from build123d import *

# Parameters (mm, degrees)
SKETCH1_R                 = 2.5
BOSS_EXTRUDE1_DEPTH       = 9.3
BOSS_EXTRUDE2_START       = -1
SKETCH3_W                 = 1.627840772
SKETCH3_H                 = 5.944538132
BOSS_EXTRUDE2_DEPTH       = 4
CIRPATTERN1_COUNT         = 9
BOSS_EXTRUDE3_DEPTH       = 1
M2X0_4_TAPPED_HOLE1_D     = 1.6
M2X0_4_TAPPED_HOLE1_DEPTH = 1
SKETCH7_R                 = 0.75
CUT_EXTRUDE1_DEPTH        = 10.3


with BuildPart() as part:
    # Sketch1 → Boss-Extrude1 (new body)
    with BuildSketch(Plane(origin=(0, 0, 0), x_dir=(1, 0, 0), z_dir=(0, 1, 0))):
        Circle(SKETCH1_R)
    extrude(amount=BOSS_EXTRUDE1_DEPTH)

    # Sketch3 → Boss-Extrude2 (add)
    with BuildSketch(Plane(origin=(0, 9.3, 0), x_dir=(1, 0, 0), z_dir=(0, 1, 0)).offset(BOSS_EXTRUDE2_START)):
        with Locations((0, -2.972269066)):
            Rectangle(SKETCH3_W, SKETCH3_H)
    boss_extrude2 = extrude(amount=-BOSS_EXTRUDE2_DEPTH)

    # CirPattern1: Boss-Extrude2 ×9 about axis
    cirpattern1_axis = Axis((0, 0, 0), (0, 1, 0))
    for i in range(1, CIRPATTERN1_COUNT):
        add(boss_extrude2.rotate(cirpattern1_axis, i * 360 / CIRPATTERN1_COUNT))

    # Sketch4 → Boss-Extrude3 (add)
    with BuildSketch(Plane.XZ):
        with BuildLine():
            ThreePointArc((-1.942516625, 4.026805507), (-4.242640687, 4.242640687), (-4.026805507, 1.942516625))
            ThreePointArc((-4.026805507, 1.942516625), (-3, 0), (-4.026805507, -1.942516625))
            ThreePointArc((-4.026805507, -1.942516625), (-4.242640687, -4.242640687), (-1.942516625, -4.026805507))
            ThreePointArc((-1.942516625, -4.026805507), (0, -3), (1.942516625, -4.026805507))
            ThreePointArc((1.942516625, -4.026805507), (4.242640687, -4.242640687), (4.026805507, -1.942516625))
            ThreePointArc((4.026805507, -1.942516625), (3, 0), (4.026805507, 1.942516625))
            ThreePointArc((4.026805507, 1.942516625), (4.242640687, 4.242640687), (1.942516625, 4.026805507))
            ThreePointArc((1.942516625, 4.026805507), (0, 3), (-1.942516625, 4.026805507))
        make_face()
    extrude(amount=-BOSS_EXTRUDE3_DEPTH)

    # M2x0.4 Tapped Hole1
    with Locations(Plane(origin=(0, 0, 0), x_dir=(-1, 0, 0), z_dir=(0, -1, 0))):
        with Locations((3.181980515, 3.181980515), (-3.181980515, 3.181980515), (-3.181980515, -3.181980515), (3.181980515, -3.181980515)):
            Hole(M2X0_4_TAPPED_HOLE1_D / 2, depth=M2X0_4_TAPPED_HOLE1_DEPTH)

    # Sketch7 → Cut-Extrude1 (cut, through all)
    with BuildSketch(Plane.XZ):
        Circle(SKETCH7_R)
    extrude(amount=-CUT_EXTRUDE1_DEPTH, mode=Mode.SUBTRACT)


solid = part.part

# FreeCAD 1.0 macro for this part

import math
import FreeCAD as App
import Part
import Sketcher
Q = App.Units.Quantity

doc = App.newDocument("Part")
params = doc.addObject("Spreadsheet::Sheet", "Params")
for row, (alias, value) in enumerate([
    ("sketch1_diameter", "5 mm"),
    ("pad1_length", "9.3 mm"),
    ("pad2_length", "4 mm"),
    ("sketch3_radius", "1.5 mm"),
    ("pad3_length", "1 mm"),
    ("sketch4_diameter", "1.6 mm"),
    ("hole_diameter", "1.6 mm"),
    ("hole_depth", "1 mm"),
    ("sketch5_diameter", "1.5 mm"),
], start=1):
    params.set(f"A{row}", alias)
    params.set(f"B{row}", "=" + value)
    params.setAlias(f"B{row}", alias)

body = doc.addObject("PartDesign::Body", "Body")

# Sketch on XZ plane
sketch1 = body.newObject("Sketcher::SketchObject", "Sketch")
sketch1.AttachmentSupport = (doc.getObject("XZ_Plane"), [""])
sketch1.MapMode = "FlatFace"
sketch1.addGeometry(Part.Circle(App.Vector(0, 0, 0), App.Vector(0, 0, 1), 2.5), False)
sketch1.addConstraint(Sketcher.Constraint("Coincident", 0, 3, -1, 1))
sketch1.addConstraint(Sketcher.Constraint("Diameter", 0, Q("5 mm")))
sketch1.setExpression("Constraints[1]", "Params.sketch1_diameter")
pad1 = body.newObject("PartDesign::Pad", "Pad")
pad1.Profile = sketch1
pad1.setExpression("Length", "Params.pad1_length")
pad1.Reversed = True

# Sketch on XZ plane
sketch2 = body.newObject("Sketcher::SketchObject", "Sketch001")
sketch2.AttachmentSupport = (doc.getObject("XZ_Plane"), [""])
sketch2.MapMode = "FlatFace"
sketch2.AttachmentOffset = App.Placement(App.Vector(0, 0, -8.3), App.Rotation())
sketch2.addGeometry(Part.LineSegment(App.Vector(-0.8, 0, 0), App.Vector(-0.8, 5.9, 0)), False)
sketch2.addGeometry(Part.LineSegment(App.Vector(-0.8, 5.9, 0), App.Vector(0.8, 5.9, 0)), False)
sketch2.addGeometry(Part.LineSegment(App.Vector(0.8, 5.9, 0), App.Vector(0.8, 0, 0)), False)
sketch2.addGeometry(Part.LineSegment(App.Vector(0.8, 0, 0), App.Vector(-0.8, 0, 0)), False)
sketch2.addConstraint(Sketcher.Constraint("Coincident", 0, 2, 1, 1))
sketch2.addConstraint(Sketcher.Constraint("Coincident", 1, 2, 2, 1))
sketch2.addConstraint(Sketcher.Constraint("Coincident", 2, 2, 3, 1))
sketch2.addConstraint(Sketcher.Constraint("Coincident", 3, 2, 0, 1))
sketch2.addConstraint(Sketcher.Constraint("Vertical", 0))
sketch2.addConstraint(Sketcher.Constraint("Horizontal", 1))
sketch2.addConstraint(Sketcher.Constraint("Vertical", 2))
sketch2.addConstraint(Sketcher.Constraint("Horizontal", 3))
sketch2.addConstraint(Sketcher.Constraint("Symmetric", 2, 2, 3, 2, -1, 1))
sketch2.addConstraint(Sketcher.Constraint("DistanceX", 1, 1, 1, 2, Q("1.627841 mm")))
sketch2.addConstraint(Sketcher.Constraint("DistanceY", 0, 1, 0, 2, Q("5.944538 mm")))
pad2 = body.newObject("PartDesign::Pad", "Pad001")
pad2.Profile = sketch2
pad2.setExpression("Length", "Params.pad2_length")
doc.recompute()

polarpattern = body.newObject("PartDesign::PolarPattern", "PolarPattern")
polarpattern.Originals = [pad2]
polarpattern.Axis = (doc.getObject("Y_Axis"), [""])
polarpattern.Angle = 360
polarpattern.Occurrences = 9
body.Tip = polarpattern

# Sketch on XZ plane
sketch3 = body.newObject("Sketcher::SketchObject", "Sketch002")
sketch3.AttachmentSupport = (doc.getObject("XZ_Plane"), [""])
sketch3.MapMode = "FlatFace"
sketch3.addGeometry(Part.ArcOfCircle(Part.Circle(App.Vector(-3.2, 3.2, 0), App.Vector(0, 0, 1), 1.5), math.radians(34), math.radians(236)), False)
sketch3.addGeometry(Part.ArcOfCircle(Part.Circle(App.Vector(-5.4, 0, 0), App.Vector(0, 0, 1), 2.4), math.radians(-56), math.radians(56)), False)
sketch3.addGeometry(Part.ArcOfCircle(Part.Circle(App.Vector(-3.2, -3.2, 0), App.Vector(0, 0, 1), 1.5), math.radians(124), math.radians(326)), False)
sketch3.addGeometry(Part.ArcOfCircle(Part.Circle(App.Vector(0, -5.4, 0), App.Vector(0, 0, 1), 2.4), math.radians(34), math.radians(146)), False)
sketch3.addGeometry(Part.ArcOfCircle(Part.Circle(App.Vector(3.2, -3.2, 0), App.Vector(0, 0, 1), 1.5), math.radians(-146), math.radians(56)), False)
sketch3.addGeometry(Part.ArcOfCircle(Part.Circle(App.Vector(5.4, 0, 0), App.Vector(0, 0, 1), 2.4), math.radians(124), math.radians(236)), False)
sketch3.addGeometry(Part.ArcOfCircle(Part.Circle(App.Vector(3.2, 3.2, 0), App.Vector(0, 0, 1), 1.5), math.radians(-56), math.radians(146)), False)
sketch3.addGeometry(Part.ArcOfCircle(Part.Circle(App.Vector(0, 5.4, 0), App.Vector(0, 0, 1), 2.4), math.radians(-146), math.radians(-34)), False)
sketch3.addConstraint(Sketcher.Constraint("Tangent", 0, 2, 1, 2))
sketch3.addConstraint(Sketcher.Constraint("Tangent", 1, 1, 2, 1))
sketch3.addConstraint(Sketcher.Constraint("Tangent", 2, 2, 3, 2))
sketch3.addConstraint(Sketcher.Constraint("Tangent", 3, 1, 4, 1))
sketch3.addConstraint(Sketcher.Constraint("Tangent", 4, 2, 5, 2))
sketch3.addConstraint(Sketcher.Constraint("Tangent", 5, 1, 6, 1))
sketch3.addConstraint(Sketcher.Constraint("Tangent", 6, 2, 7, 2))
sketch3.addConstraint(Sketcher.Constraint("Tangent", 7, 1, 0, 1))
sketch3.addConstraint(Sketcher.Constraint("Equal", 0, 2))
sketch3.addConstraint(Sketcher.Constraint("Equal", 1, 3))
sketch3.addConstraint(Sketcher.Constraint("Equal", 2, 4))
sketch3.addConstraint(Sketcher.Constraint("Equal", 3, 5))
sketch3.addConstraint(Sketcher.Constraint("Equal", 4, 6))
sketch3.addConstraint(Sketcher.Constraint("Equal", 5, 7))
sketch3.addConstraint(Sketcher.Constraint("Symmetric", 0, 3, 4, 3, -1, 1))
sketch3.addConstraint(Sketcher.Constraint("Symmetric", 2, 3, 6, 3, -1, 1))
sketch3.addConstraint(Sketcher.Constraint("Symmetric", 2, 3, 4, 3, -2))
sketch3.addConstraint(Sketcher.Constraint("Radius", 0, Q("1.5 mm")))
sketch3.addConstraint(Sketcher.Constraint("Radius", 1, Q("2.350835 mm")))
sketch3.addConstraint(Sketcher.Constraint("DistanceX", 0, 3, -1, 1, Q("3.181981 mm")))
sketch3.addConstraint(Sketcher.Constraint("DistanceY", -1, 1, 0, 3, Q("3.181981 mm")))
sketch3.setExpression("Constraints[17]", "Params.sketch3_radius")
pad3 = body.newObject("PartDesign::Pad", "Pad002")
pad3.Profile = sketch3
pad3.setExpression("Length", "Params.pad3_length")
pad3.Reversed = True

# Sketch on XZ plane
sketch4 = body.newObject("Sketcher::SketchObject", "Sketch003")
sketch4.AttachmentSupport = (doc.getObject("XZ_Plane"), [""])
sketch4.MapMode = "FlatFace"
sketch4.addGeometry(Part.Circle(App.Vector(-3.2, -3.2, 0), App.Vector(0, 0, 1), 0.8), False)
sketch4.addGeometry(Part.Circle(App.Vector(3.2, -3.2, 0), App.Vector(0, 0, 1), 0.8), False)
sketch4.addGeometry(Part.Circle(App.Vector(3.2, 3.2, 0), App.Vector(0, 0, 1), 0.8), False)
sketch4.addGeometry(Part.Circle(App.Vector(-3.2, 3.2, 0), App.Vector(0, 0, 1), 0.8), False)
sketch4.addConstraint(Sketcher.Constraint("Equal", 0, 1))
sketch4.addConstraint(Sketcher.Constraint("Equal", 1, 2))
sketch4.addConstraint(Sketcher.Constraint("Equal", 2, 3))
sketch4.addConstraint(Sketcher.Constraint("Symmetric", 0, 3, 2, 3, -1, 1))
sketch4.addConstraint(Sketcher.Constraint("Symmetric", 1, 3, 3, 3, -1, 1))
sketch4.addConstraint(Sketcher.Constraint("Symmetric", 0, 3, 1, 3, -2))
sketch4.addConstraint(Sketcher.Constraint("Diameter", 0, Q("1.6 mm")))
sketch4.addConstraint(Sketcher.Constraint("DistanceX", 0, 3, -1, 1, Q("3.181981 mm")))
sketch4.addConstraint(Sketcher.Constraint("DistanceY", 0, 3, -1, 1, Q("3.181981 mm")))
sketch4.setExpression("Constraints[6]", "Params.sketch4_diameter")
doc.recompute()
hole = body.newObject("PartDesign::Hole", "Hole")
hole.Profile = sketch4
hole.ThreadType = "None"
hole.setExpression("Diameter", "Params.hole_diameter")
hole.DepthType = "Dimension"
hole.setExpression("Depth", "Params.hole_depth")
hole.DrillPoint = "Flat"

# Sketch on XZ plane
sketch5 = body.newObject("Sketcher::SketchObject", "Sketch004")
sketch5.AttachmentSupport = (doc.getObject("XZ_Plane"), [""])
sketch5.MapMode = "FlatFace"
sketch5.addGeometry(Part.Circle(App.Vector(0, 0, 0), App.Vector(0, 0, 1), 0.8), False)
sketch5.addConstraint(Sketcher.Constraint("Coincident", 0, 3, -1, 1))
sketch5.addConstraint(Sketcher.Constraint("Diameter", 0, Q("1.5 mm")))
sketch5.setExpression("Constraints[1]", "Params.sketch5_diameter")
pocket1 = body.newObject("PartDesign::Pocket", "Pocket")
pocket1.Profile = sketch5
pocket1.Type = "ThroughAll"

doc.recompute()
